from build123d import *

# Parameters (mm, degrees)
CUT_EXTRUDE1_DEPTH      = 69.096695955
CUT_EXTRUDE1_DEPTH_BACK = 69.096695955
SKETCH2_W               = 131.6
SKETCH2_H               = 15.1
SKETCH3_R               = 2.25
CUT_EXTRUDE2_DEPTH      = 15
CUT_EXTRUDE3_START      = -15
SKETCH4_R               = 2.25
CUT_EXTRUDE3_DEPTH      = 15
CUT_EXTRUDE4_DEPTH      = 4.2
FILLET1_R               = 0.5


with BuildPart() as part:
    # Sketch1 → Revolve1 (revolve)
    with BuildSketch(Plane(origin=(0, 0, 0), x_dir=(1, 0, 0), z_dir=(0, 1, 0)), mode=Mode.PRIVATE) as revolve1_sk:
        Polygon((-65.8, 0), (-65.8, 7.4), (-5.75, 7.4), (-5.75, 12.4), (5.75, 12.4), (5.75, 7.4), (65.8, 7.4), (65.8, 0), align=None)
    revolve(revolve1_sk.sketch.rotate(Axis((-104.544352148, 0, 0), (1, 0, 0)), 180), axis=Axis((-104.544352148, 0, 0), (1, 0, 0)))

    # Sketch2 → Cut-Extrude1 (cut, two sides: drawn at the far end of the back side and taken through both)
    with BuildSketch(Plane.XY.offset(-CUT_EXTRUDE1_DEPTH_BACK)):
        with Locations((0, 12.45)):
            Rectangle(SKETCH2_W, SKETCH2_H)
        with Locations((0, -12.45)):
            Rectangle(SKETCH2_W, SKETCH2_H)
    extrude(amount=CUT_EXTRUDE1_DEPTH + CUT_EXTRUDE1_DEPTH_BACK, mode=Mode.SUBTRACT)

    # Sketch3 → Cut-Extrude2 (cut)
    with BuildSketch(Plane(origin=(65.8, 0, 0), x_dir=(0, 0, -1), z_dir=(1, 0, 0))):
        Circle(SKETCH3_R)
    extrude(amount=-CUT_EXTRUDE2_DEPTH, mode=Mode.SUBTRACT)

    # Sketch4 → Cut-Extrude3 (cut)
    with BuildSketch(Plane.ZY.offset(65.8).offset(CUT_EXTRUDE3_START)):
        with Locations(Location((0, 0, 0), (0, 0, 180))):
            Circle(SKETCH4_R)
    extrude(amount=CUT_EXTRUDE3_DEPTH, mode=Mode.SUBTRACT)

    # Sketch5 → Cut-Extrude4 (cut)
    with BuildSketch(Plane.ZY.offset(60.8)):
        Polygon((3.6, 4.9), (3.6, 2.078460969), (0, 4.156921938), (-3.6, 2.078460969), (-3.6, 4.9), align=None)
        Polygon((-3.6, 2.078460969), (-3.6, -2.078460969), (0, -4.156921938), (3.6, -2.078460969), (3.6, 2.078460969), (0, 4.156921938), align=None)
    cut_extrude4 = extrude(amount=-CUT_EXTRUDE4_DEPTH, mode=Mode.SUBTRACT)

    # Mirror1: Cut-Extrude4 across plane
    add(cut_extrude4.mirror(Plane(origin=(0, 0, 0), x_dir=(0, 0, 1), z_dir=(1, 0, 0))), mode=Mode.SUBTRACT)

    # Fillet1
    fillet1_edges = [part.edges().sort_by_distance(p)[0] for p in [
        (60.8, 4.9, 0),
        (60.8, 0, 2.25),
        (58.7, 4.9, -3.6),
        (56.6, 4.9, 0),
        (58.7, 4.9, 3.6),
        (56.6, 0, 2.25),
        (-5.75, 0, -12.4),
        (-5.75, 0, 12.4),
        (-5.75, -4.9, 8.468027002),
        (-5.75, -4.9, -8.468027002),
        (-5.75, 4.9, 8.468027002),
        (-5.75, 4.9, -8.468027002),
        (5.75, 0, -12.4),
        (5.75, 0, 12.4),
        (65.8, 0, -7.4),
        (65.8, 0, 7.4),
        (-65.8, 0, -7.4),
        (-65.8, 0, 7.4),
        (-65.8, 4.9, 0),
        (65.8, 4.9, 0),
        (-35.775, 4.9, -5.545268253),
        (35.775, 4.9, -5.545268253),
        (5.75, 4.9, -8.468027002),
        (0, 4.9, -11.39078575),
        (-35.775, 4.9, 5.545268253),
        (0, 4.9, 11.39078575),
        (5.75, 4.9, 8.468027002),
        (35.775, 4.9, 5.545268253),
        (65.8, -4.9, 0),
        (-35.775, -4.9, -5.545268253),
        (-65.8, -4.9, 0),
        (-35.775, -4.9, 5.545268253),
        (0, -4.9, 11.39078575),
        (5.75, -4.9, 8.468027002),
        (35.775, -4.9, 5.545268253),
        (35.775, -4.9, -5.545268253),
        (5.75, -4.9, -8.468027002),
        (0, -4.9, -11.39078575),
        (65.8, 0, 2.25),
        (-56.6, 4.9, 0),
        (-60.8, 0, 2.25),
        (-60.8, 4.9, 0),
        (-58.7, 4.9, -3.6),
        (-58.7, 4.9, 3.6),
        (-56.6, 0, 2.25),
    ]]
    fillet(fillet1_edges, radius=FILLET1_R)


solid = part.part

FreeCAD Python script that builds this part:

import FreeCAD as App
import Part
import Sketcher
Q = App.Units.Quantity


def edges_at(feature, points):
    """Names of the edges that pass closest to the given points."""
    edges = feature.Shape.Edges
    near = lambda p: min(range(len(edges)), key=lambda i: edges[i].distToShape(Part.Vertex(*p))[0])
    return sorted({f"Edge{near(p) + 1}" for p in points})


def add_polygon(sketch, points):
    """Adds a closed chain of lines whose ends are joined by coincident constraints."""
    first, n = sketch.GeometryCount, len(points)
    for a, b in zip(points, points[1:] + points[:1]):
        sketch.addGeometry(Part.LineSegment(App.Vector(*a, 0), App.Vector(*b, 0)), False)
    for i in range(n):
        sketch.addConstraint(Sketcher.Constraint("Coincident", first + i, 2, first + (i + 1) % n, 1))

doc = App.newDocument("Part")
body = doc.addObject("PartDesign::Body", "Body")

# Sketch on XZ plane
sketch1 = body.newObject("Sketcher::SketchObject", "Sketch")
sketch1.AttachmentSupport = (doc.getObject("XZ_Plane"), [""])
sketch1.MapMode = "FlatFace"
add_polygon(sketch1, [(-66, -7), (-66, 0), (66, 0), (66, -7), (6, -7), (6, -12), (-6, -12), (-6, -7)])  # lines 0-7
sketch1.addConstraint(Sketcher.Constraint("Vertical", 0))
sketch1.addConstraint(Sketcher.Constraint("Horizontal", 1))
sketch1.addConstraint(Sketcher.Constraint("Vertical", 2))
sketch1.addConstraint(Sketcher.Constraint("Horizontal", 3))
sketch1.addConstraint(Sketcher.Constraint("Vertical", 4))
sketch1.addConstraint(Sketcher.Constraint("Horizontal", 5))
sketch1.addConstraint(Sketcher.Constraint("Vertical", 6))
sketch1.addConstraint(Sketcher.Constraint("Horizontal", 7))
sketch1.addConstraint(Sketcher.Constraint("Symmetric", 0, 2, 1, 2, -1, 1))
sketch1.addConstraint(Sketcher.Constraint("Symmetric", 3, 2, 6, 2, -2))
sketch1.addConstraint(Sketcher.Constraint("DistanceY", 4, 2, 4, 1, 5.0))
sketch1.addConstraint(Sketcher.Constraint("DistanceX", 1, 1, 1, 2, 131.6))
sketch1.addConstraint(Sketcher.Constraint("DistanceX", 5, 2, 5, 1, 11.5))
sketch1.addConstraint(Sketcher.Constraint("DistanceY", 0, 1, 0, 2, 7.4))
revolution = body.newObject("PartDesign::Revolution", "Revolution")
revolution.Profile = sketch1
revolution.ReferenceAxis = (sketch1, ["H_Axis"])
revolution.Angle = 360

# Sketch on XY plane
sketch2 = body.newObject("Sketcher::SketchObject", "Sketch001")
sketch2.AttachmentSupport = (doc.getObject("XY_Plane"), [""])
sketch2.MapMode = "FlatFace"
add_polygon(sketch2, [(-66, 20), (-66, 5), (66, 5), (66, 20)])  # lines 0-3
add_polygon(sketch2, [(-66, -5), (-66, -20), (66, -20), (66, -5)])  # lines 4-7
sketch2.addConstraint(Sketcher.Constraint("Vertical", 0))
sketch2.addConstraint(Sketcher.Constraint("Horizontal", 1))
sketch2.addConstraint(Sketcher.Constraint("Vertical", 2))
sketch2.addConstraint(Sketcher.Constraint("Horizontal", 3))
sketch2.addConstraint(Sketcher.Constraint("Vertical", 4))
sketch2.addConstraint(Sketcher.Constraint("Horizontal", 5))
sketch2.addConstraint(Sketcher.Constraint("Vertical", 6))
sketch2.addConstraint(Sketcher.Constraint("Horizontal", 7))
sketch2.addConstraint(Sketcher.Constraint("Symmetric", 2, 2, 4, 2, -1, 1))
sketch2.addConstraint(Sketcher.Constraint("Symmetric", 0, 2, 6, 2, -1, 1))
sketch2.addConstraint(Sketcher.Constraint("Vertical", 3, 2, 4, 2))
sketch2.addConstraint(Sketcher.Constraint("DistanceX", 1, 1, 1, 2, 131.6))
sketch2.addConstraint(Sketcher.Constraint("DistanceY", 0, 2, 0, 1, 15.1))
sketch2.addConstraint(Sketcher.Constraint("DistanceY", -1, 1, 2, 2, 20.0))
pocket1 = body.newObject("PartDesign::Pocket", "Pocket")
pocket1.Profile = sketch2
pocket1.Type = "ThroughAll"
pocket1.Midplane = True

# Sketch on YZ plane
sketch3 = body.newObject("Sketcher::SketchObject", "Sketch002")
sketch3.AttachmentSupport = (doc.getObject("YZ_Plane"), [""])
sketch3.MapMode = "FlatFace"
sketch3.AttachmentOffset = App.Placement(App.Vector(0, 0, 65.8), App.Rotation())
sketch3.addGeometry(Part.Circle(App.Vector(0, 0, 0), App.Vector(0, 0, 1), 2.2), False)
sketch3.addConstraint(Sketcher.Constraint("Coincident", 0, 3, -1, 1))
sketch3.addConstraint(Sketcher.Constraint("Diameter", 0, 4.5))
pocket2 = body.newObject("PartDesign::Pocket", "Pocket001")
pocket2.Profile = sketch3
pocket2.Length = 15

# Sketch on YZ plane
sketch4 = body.newObject("Sketcher::SketchObject", "Sketch003")
sketch4.AttachmentSupport = (doc.getObject("YZ_Plane"), [""])
sketch4.MapMode = "FlatFace"
sketch4.AttachmentOffset = App.Placement(App.Vector(0, 0, -50.8), App.Rotation())
sketch4.addGeometry(Part.Circle(App.Vector(0, 0, 0), App.Vector(0, 0, 1), 2.2), False)
sketch4.addConstraint(Sketcher.Constraint("Coincident", 0, 3, -1, 1))
sketch4.addConstraint(Sketcher.Constraint("Diameter", 0, 4.5))
pocket3 = body.newObject("PartDesign::Pocket", "Pocket002")
pocket3.Profile = sketch4
pocket3.Length = 15

# Sketch on YZ plane
sketch5 = body.newObject("Sketcher::SketchObject", "Sketch004")
sketch5.AttachmentSupport = (doc.getObject("YZ_Plane"), [""])
sketch5.MapMode = "FlatFace"
sketch5.AttachmentOffset = App.Placement(App.Vector(0, 0, -60.8), App.Rotation())
add_polygon(sketch5, [(-2.1, 3.6), (4.9, 3.6), (4.9, -3.6), (-2.1, -3.6), (-4.2, 0)])  # lines 0-4
sketch5.addConstraint(Sketcher.Constraint("Horizontal", 0))
sketch5.addConstraint(Sketcher.Constraint("Vertical", 1))
sketch5.addConstraint(Sketcher.Constraint("Horizontal", 2))
sketch5.addConstraint(Sketcher.Constraint("Symmetric", 2, 2, 4, 2, -1))
sketch5.addConstraint(Sketcher.Constraint("PointOnObject", 3, 2, -1))
sketch5.addConstraint(Sketcher.Constraint("Angle", 3, Q("120 deg")))
sketch5.addConstraint(Sketcher.Constraint("DistanceY", 1, 2, 1, 1, 7.2))
sketch5.addConstraint(Sketcher.Constraint("DistanceX", -1, 1, 0, 2, 4.9))
sketch5.addConstraint(Sketcher.Constraint("DistanceX", 0, 1, 0, 2, 6.978461))
pocket4 = body.newObject("PartDesign::Pocket", "Pocket003")
pocket4.Profile = sketch5
pocket4.Length = 4.2
pocket4.Reversed = True
doc.recompute()

mirrored = body.newObject("PartDesign::Mirrored", "Mirrored")
mirrored.Originals = [pocket4]
mirrored.MirrorPlane = (doc.getObject("YZ_Plane"), [""])
body.Tip = mirrored
doc.recompute()

fillet = body.newObject("PartDesign::Fillet", "Fillet")
fillet.Base = (mirrored, edges_at(mirrored, [
    (60.8, 4.9, 0),
    (60.8, 0, 2.25),
    (58.7, 4.9, -3.6),
    (56.6, 4.9, 0),
    (58.7, 4.9, 3.6),
    (56.6, 0, 2.25),
    (-5.75, 0, -12.4),
    (-5.75, 0, 12.4),
    (-5.75, -4.9, 8.468),
    (-5.75, -4.9, -8.468),
    (-5.75, 4.9, 8.468),
    (-5.75, 4.9, -8.468),
    (5.75, 0, -12.4),
    (5.75, 0, 12.4),
    (65.8, 0, -7.4),
    (65.8, 0, 7.4),
    (-65.8, 0, -7.4),
    (-65.8, 0, 7.4),
    (-65.8, 4.9, 0),
    (65.8, 4.9, 0),
    (-35.775, 4.9, -5.545),
    (35.775, 4.9, -5.545),
    (5.75, 4.9, -8.468),
    (0, 4.9, -11.391),
    (-35.775, 4.9, 5.545),
    (0, 4.9, 11.391),
    (5.75, 4.9, 8.468),
    (35.775, 4.9, 5.545),
    (65.8, -4.9, 0),
    (-35.775, -4.9, -5.545),
    (-65.8, -4.9, 0),
    (-35.775, -4.9, 5.545),
    (0, -4.9, 11.391),
    (5.75, -4.9, 8.468),
    (35.775, -4.9, 5.545),
    (35.775, -4.9, -5.545),
    (5.75, -4.9, -8.468),
    (0, -4.9, -11.391),
    (65.8, 0, 2.25),
    (-56.6, 4.9, 0),
    (-60.8, 0, 2.25),
    (-60.8, 4.9, 0),
    (-58.7, 4.9, -3.6),
    (-58.7, 4.9, 3.6),
    (-56.6, 0, 2.25),
]))
fillet.Radius = 0.5

doc.recompute()
